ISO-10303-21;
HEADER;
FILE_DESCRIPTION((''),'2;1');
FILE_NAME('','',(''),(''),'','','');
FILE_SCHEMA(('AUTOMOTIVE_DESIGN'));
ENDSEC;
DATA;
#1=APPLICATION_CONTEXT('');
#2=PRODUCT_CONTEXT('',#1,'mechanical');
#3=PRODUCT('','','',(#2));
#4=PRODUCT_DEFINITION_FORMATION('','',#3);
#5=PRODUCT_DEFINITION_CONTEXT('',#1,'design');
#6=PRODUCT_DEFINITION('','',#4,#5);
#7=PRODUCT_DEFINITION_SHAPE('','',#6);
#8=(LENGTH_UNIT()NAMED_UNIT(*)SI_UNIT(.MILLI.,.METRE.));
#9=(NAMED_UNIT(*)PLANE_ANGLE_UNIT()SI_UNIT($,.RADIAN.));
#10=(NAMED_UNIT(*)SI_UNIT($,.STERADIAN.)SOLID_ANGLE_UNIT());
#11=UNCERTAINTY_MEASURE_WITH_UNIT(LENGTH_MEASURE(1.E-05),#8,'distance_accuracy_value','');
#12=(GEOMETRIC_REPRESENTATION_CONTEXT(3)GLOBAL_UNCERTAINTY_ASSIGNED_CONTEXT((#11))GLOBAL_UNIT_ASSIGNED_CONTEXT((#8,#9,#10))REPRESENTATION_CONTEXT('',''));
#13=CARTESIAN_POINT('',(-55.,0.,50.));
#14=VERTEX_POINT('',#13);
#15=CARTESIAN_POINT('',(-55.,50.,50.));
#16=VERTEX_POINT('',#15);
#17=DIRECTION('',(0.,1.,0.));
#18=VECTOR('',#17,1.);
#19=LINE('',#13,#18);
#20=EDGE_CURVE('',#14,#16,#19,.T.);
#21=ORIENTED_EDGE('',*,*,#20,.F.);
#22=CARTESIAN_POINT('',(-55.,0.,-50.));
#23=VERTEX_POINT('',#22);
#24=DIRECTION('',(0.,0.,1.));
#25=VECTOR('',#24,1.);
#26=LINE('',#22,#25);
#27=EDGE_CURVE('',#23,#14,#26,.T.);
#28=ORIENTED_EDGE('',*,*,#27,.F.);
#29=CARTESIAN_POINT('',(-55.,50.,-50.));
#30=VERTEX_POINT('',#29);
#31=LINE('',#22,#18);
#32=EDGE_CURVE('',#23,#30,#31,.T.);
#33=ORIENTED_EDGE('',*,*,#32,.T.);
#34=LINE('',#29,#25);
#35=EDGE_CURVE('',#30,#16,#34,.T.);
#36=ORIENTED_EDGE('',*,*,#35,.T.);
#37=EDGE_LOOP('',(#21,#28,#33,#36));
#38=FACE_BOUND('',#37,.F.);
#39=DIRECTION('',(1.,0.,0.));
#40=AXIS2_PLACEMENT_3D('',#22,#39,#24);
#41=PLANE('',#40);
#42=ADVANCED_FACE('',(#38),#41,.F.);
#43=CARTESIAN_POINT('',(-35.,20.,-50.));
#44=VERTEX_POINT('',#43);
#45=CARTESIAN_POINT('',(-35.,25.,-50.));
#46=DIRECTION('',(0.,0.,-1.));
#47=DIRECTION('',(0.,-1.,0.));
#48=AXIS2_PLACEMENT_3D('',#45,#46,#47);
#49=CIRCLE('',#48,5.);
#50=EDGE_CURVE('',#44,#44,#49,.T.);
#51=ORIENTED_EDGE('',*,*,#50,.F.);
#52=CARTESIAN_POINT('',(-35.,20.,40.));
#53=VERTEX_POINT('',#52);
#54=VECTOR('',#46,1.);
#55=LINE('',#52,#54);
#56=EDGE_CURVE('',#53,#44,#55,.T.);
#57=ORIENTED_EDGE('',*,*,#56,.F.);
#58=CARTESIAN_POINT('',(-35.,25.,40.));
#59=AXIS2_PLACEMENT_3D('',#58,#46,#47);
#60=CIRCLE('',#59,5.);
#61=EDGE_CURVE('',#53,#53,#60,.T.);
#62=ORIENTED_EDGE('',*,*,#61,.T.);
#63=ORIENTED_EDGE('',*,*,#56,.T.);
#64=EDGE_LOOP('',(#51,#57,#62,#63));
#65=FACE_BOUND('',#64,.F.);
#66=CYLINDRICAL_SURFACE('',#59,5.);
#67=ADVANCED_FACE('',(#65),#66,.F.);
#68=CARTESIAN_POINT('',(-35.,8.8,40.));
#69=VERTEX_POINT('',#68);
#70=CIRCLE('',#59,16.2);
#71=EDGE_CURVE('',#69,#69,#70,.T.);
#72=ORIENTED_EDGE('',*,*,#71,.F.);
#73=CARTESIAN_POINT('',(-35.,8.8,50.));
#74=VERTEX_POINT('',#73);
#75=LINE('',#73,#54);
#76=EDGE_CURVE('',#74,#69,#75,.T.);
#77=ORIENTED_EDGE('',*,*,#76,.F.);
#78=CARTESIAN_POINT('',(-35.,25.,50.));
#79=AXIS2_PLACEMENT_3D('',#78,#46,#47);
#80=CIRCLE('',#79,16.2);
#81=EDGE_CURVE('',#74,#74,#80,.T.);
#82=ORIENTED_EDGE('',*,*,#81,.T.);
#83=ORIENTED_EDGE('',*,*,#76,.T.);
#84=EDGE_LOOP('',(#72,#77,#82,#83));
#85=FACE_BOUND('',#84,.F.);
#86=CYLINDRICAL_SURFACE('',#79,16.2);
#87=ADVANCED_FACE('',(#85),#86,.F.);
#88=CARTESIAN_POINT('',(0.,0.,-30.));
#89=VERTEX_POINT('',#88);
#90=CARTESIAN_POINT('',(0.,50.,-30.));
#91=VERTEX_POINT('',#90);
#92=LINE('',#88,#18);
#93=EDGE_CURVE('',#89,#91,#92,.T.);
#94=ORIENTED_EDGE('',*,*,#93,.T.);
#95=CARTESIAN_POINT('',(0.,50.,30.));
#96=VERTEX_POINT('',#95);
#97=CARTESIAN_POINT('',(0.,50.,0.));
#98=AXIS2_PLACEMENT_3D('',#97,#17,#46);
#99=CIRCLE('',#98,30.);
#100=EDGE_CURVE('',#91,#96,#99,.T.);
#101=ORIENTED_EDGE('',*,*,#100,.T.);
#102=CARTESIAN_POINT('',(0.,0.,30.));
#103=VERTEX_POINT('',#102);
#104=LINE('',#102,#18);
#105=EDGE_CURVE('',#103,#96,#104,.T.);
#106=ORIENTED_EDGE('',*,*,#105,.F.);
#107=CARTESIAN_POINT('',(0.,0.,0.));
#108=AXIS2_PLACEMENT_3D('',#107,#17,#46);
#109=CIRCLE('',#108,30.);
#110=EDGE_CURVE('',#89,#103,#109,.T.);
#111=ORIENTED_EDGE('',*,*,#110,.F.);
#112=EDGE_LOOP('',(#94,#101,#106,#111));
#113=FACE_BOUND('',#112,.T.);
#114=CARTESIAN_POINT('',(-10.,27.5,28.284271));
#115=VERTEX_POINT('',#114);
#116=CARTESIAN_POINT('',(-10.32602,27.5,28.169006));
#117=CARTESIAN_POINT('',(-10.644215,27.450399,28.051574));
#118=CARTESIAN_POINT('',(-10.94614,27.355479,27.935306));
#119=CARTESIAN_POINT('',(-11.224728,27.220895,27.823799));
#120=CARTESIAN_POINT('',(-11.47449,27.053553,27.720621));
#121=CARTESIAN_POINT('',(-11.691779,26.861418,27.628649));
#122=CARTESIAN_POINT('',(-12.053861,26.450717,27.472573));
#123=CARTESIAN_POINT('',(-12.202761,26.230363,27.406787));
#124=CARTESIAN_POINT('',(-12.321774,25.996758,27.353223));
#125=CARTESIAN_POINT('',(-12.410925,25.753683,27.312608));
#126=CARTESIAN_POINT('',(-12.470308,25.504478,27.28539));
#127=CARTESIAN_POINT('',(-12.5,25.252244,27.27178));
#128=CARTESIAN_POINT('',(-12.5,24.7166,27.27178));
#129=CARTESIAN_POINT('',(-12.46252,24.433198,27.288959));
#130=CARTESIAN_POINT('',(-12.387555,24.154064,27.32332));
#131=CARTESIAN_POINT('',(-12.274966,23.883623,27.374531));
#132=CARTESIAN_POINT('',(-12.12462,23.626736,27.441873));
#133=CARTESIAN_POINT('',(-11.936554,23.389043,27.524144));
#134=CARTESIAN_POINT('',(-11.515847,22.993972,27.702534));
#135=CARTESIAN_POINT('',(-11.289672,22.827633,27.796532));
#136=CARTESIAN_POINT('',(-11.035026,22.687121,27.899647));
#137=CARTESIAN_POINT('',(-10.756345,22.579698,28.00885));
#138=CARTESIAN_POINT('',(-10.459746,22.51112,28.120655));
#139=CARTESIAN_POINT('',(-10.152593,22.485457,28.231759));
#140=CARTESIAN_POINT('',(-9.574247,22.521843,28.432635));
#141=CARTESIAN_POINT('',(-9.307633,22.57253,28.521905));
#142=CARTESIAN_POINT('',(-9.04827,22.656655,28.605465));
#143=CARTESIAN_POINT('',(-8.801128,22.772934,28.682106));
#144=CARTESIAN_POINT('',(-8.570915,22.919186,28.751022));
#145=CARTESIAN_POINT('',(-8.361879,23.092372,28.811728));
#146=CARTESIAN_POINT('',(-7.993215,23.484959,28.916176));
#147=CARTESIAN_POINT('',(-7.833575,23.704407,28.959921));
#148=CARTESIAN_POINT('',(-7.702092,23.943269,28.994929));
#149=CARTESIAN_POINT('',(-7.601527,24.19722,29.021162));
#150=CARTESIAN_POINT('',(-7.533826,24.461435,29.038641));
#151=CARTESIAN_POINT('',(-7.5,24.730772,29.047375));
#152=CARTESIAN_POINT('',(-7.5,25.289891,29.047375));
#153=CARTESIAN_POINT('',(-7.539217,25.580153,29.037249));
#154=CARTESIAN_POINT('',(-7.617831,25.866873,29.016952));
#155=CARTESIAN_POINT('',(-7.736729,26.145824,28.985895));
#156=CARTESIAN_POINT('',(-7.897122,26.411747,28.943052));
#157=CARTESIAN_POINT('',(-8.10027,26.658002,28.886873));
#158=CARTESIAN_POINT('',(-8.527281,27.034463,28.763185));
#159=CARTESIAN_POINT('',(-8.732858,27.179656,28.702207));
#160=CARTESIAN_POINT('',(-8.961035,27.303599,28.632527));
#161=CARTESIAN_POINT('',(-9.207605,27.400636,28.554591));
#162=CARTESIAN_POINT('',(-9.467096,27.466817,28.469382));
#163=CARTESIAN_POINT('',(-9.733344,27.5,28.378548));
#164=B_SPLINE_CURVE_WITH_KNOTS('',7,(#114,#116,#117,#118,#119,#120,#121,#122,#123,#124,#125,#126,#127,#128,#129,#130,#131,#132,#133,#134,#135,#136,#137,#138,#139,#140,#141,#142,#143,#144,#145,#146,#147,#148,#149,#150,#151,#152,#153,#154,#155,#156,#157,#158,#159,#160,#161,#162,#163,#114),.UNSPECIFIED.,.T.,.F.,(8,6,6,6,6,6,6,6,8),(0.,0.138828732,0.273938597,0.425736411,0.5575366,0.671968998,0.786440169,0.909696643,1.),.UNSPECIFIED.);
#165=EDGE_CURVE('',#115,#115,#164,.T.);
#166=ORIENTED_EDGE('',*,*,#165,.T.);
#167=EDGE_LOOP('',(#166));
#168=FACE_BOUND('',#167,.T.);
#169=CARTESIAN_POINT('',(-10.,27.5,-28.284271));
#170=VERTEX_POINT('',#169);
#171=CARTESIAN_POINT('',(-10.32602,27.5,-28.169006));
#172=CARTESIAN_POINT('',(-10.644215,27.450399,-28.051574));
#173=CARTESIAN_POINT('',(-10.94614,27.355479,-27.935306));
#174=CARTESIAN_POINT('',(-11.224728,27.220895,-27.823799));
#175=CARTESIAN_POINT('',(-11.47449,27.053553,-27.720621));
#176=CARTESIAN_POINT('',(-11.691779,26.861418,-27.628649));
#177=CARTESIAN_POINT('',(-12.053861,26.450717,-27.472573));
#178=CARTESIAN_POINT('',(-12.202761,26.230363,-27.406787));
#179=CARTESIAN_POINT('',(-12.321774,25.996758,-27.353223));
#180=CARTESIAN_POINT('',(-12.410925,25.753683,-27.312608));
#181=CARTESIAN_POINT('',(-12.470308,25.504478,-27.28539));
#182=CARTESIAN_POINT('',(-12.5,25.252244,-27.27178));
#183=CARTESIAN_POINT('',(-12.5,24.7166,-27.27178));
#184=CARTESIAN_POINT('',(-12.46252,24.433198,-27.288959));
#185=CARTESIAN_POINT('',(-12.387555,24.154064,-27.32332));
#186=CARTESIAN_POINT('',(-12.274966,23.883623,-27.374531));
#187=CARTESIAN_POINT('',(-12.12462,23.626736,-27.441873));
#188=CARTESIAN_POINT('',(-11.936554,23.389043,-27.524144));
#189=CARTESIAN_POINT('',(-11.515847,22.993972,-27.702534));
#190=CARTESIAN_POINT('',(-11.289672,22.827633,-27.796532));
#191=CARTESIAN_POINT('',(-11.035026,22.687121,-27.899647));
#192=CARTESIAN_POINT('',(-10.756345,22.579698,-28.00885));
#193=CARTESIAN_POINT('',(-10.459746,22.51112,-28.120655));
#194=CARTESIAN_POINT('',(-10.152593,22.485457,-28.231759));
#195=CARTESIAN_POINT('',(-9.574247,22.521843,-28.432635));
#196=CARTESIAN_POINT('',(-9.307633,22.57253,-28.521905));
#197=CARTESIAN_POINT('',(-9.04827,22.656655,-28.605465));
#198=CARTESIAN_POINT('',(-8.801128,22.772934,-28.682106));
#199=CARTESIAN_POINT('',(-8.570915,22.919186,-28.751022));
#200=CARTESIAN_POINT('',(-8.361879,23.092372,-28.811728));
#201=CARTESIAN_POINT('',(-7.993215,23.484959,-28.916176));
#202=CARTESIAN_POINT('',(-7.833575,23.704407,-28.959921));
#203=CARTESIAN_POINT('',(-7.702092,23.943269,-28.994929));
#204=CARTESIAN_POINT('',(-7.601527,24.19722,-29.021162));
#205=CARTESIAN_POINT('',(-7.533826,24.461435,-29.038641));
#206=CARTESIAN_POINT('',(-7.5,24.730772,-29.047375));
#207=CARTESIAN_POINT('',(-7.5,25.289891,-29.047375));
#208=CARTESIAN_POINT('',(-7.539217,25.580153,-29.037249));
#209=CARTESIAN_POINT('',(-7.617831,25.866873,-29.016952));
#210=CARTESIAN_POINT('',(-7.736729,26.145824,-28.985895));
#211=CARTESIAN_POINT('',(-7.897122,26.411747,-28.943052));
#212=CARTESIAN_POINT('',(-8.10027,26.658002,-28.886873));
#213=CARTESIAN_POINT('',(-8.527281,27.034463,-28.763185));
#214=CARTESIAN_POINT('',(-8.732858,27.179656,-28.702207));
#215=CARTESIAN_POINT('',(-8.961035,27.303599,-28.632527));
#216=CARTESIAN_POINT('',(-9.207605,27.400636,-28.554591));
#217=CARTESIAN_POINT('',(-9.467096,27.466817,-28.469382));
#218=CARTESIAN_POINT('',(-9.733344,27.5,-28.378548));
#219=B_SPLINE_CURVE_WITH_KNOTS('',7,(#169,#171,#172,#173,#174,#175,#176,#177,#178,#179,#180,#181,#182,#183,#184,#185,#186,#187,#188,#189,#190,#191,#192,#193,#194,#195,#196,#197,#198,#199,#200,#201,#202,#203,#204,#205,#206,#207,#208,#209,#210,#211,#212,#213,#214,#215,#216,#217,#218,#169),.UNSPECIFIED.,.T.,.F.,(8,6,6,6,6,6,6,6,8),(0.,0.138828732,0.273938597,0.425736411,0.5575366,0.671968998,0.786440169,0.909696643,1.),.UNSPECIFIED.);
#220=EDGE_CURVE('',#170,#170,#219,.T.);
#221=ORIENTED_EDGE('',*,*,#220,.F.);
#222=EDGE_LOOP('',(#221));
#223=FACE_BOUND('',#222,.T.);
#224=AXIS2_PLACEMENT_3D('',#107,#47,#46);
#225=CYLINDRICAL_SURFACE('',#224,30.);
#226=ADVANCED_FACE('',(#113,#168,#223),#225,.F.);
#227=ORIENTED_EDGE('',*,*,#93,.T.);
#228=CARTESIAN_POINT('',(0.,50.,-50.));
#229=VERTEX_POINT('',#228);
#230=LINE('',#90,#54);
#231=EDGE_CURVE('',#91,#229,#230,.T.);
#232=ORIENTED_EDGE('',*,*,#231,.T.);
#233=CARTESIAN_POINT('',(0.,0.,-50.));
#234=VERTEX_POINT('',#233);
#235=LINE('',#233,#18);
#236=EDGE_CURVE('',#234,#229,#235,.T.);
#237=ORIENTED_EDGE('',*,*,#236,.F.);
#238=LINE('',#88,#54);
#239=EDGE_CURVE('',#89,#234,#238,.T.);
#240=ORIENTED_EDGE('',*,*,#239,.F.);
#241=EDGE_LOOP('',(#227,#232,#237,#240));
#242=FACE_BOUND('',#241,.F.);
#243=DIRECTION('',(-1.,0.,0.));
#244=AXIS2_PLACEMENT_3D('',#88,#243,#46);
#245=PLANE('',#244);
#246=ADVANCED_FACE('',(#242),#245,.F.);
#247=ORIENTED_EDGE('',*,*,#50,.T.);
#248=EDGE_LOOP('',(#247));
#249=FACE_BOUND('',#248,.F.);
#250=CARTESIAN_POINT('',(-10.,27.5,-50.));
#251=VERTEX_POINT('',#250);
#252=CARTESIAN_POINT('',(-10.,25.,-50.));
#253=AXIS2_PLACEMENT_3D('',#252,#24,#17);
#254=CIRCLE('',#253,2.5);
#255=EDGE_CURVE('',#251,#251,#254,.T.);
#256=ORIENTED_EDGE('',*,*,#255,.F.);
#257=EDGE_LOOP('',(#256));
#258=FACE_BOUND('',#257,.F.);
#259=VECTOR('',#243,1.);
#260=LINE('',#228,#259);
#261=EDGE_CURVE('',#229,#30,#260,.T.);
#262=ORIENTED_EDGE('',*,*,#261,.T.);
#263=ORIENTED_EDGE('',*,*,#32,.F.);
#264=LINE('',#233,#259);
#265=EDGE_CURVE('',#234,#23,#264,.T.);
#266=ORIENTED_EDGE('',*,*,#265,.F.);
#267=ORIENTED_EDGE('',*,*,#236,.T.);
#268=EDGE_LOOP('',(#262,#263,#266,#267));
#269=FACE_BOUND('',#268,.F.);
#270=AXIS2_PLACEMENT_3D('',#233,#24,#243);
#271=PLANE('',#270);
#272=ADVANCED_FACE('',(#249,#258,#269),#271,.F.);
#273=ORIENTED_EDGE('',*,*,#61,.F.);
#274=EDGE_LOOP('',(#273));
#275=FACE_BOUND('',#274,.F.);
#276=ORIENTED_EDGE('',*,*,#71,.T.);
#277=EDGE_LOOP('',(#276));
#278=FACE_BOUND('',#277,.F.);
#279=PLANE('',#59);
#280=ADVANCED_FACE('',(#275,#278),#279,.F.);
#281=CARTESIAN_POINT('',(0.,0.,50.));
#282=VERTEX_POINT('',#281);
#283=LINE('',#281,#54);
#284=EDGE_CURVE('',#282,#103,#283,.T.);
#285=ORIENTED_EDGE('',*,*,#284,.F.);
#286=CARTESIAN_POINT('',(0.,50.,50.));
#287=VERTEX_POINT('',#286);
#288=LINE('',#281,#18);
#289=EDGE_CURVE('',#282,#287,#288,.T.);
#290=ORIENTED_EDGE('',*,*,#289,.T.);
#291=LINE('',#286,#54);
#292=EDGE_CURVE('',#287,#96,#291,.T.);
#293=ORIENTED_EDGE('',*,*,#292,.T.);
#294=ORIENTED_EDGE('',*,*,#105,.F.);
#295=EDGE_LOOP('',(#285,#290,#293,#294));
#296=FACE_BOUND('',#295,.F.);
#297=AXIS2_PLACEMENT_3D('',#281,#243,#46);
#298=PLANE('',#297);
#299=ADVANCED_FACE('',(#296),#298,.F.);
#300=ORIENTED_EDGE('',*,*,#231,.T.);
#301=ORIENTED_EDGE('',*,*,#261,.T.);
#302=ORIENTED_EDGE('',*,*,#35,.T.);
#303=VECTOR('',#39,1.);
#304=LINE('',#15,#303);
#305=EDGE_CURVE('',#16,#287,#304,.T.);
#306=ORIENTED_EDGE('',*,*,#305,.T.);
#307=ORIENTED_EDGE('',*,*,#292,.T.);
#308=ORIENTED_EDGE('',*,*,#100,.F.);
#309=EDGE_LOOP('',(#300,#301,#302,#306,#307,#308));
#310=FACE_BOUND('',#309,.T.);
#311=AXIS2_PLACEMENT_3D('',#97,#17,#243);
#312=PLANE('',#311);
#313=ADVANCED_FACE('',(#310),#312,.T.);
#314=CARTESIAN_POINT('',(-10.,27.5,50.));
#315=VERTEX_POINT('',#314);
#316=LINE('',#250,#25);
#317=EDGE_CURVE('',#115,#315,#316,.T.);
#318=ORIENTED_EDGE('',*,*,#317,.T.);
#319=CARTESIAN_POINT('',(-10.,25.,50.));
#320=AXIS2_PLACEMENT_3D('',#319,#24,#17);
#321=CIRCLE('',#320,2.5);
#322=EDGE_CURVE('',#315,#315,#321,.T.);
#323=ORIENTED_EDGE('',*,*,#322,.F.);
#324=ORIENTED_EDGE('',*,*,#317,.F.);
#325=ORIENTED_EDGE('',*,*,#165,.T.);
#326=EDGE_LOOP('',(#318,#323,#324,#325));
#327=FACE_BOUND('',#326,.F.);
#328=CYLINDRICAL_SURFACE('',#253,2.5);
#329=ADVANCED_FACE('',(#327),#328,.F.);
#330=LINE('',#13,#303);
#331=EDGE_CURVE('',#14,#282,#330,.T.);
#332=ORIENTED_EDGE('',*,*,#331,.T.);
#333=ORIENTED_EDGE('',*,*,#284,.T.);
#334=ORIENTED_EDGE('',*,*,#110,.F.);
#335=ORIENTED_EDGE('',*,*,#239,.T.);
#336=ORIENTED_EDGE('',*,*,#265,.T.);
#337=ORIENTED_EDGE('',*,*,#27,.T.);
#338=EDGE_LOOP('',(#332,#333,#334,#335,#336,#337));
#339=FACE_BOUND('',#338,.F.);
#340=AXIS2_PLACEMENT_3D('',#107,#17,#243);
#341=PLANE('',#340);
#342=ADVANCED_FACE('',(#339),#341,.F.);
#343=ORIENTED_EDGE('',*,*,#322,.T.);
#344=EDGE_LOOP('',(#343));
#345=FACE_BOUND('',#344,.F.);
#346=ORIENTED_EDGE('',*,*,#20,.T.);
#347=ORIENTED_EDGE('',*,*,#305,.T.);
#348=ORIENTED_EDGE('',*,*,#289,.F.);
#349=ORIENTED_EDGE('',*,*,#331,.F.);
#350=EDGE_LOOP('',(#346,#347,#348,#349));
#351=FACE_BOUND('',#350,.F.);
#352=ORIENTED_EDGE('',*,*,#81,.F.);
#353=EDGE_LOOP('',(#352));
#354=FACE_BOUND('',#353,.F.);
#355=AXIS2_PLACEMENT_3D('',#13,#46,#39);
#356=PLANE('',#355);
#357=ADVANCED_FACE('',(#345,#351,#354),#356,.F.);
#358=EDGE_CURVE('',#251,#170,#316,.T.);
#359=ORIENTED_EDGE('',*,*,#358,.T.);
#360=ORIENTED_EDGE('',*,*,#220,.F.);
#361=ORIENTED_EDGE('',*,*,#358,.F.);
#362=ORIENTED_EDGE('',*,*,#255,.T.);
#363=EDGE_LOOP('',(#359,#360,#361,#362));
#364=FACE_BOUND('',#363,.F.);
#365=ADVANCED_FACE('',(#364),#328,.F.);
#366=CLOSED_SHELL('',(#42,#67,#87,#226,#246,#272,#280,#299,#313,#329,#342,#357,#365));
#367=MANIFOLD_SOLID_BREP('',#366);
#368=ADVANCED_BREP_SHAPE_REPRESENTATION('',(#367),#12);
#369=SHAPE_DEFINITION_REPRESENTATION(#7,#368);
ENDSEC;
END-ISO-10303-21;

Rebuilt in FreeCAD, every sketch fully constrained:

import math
import FreeCAD as App
import Part
import Sketcher

V = App.Vector

doc = App.newDocument("Part")
body = doc.addObject("PartDesign::Body", "Body")

sketch1 = body.newObject("Sketcher::SketchObject", "Sketch")
sketch1.AttachmentSupport = (doc.getObject("XZ_Plane"), [""])
sketch1.MapMode = "FlatFace"
sketch1.addGeometry([
    Part.LineSegment(V(0, -30, 0), V(0, -50, 0)),
    Part.LineSegment(V(0, -50, 0), V(-55, -50, 0)),
    Part.LineSegment(V(-55, -50, 0), V(-55, 50, 0)),
    Part.LineSegment(V(-55, 50, 0), V(0, 50, 0)),
    Part.LineSegment(V(0, 50, 0), V(0, 30, 0)),
    Part.ArcOfCircle(Part.Circle(V(0, 0, 0), V(0, 0, 1), 30), math.radians(90), math.radians(270)),
], False)
sketch1.addConstraint([
    Sketcher.Constraint("Coincident", 0, 2, 1, 1),
    Sketcher.Constraint("Coincident", 1, 2, 2, 1),
    Sketcher.Constraint("Coincident", 2, 2, 3, 1),
    Sketcher.Constraint("Coincident", 3, 2, 4, 1),
    Sketcher.Constraint("Coincident", 4, 2, 5, 1),
    Sketcher.Constraint("Coincident", 5, 2, 0, 1),
    Sketcher.Constraint("Vertical", 0),
    Sketcher.Constraint("Horizontal", 1),
    Sketcher.Constraint("Vertical", 2),
    Sketcher.Constraint("Horizontal", 3),
    Sketcher.Constraint("Vertical", 4),
    Sketcher.Constraint("Coincident", 5, 3, -1, 1),
    Sketcher.Constraint("Symmetric", 0, 2, 3, 2, -1, 1),
    Sketcher.Constraint("PointOnObject", 0, 2, -2),
    Sketcher.Constraint("Radius", 5, 30.0),
    Sketcher.Constraint("DistanceX", 1, 2, 1, 1, 55.0),
    Sketcher.Constraint("DistanceY", 2, 1, 2, 2, 100.0),
])
pad1 = body.newObject("PartDesign::Pad", "Pad")
pad1.Profile = sketch1
pad1.Length = 50
pad1.Reversed = True

sketch2 = body.newObject("Sketcher::SketchObject", "Sketch001")
sketch2.AttachmentSupport = (doc.getObject("XY_Plane"), [""])
sketch2.MapMode = "FlatFace"
sketch2.AttachmentOffset = App.Placement(V(0, 0, 50), App.Rotation())
sketch2.addGeometry(Part.Circle(V(-35, 25, 0), V(0, 0, 1), 5), False)
sketch2.addConstraint([
    Sketcher.Constraint("Diameter", 0, 10.0),
    Sketcher.Constraint("DistanceX", 0, 3, -1, 1, 35.0),
    Sketcher.Constraint("DistanceY", -1, 1, 0, 3, 25.0),
])
doc.recompute()
hole = body.newObject("PartDesign::Hole", "Hole")
hole.Profile = sketch2
hole.ThreadType = "None"
hole.Diameter = 10
hole.DepthType = "ThroughAll"
hole.HoleCutType = "Counterbore"
hole.HoleCutDiameter = 32.4
hole.HoleCutDepth = 10

sketch3 = body.newObject("Sketcher::SketchObject", "Sketch002")
sketch3.AttachmentSupport = (doc.getObject("XY_Plane"), [""])
sketch3.MapMode = "FlatFace"
sketch3.AttachmentOffset = App.Placement(V(0, 0, -50), App.Rotation())
sketch3.addGeometry(Part.Circle(V(-10, 25, 0), V(0, 0, 1), 2.5), False)
sketch3.addConstraint([
    Sketcher.Constraint("Diameter", 0, 5.0),
    Sketcher.Constraint("DistanceX", 0, 3, -1, 1, 10.0),
    Sketcher.Constraint("DistanceY", -1, 1, 0, 3, 25.0),
])
doc.recompute()
hole2 = body.newObject("PartDesign::Hole", "Hole001")
hole2.Profile = sketch3
hole2.ThreadType = "None"
hole2.Diameter = 5
hole2.DepthType = "ThroughAll"
hole2.Reversed = True

doc.recompute()
